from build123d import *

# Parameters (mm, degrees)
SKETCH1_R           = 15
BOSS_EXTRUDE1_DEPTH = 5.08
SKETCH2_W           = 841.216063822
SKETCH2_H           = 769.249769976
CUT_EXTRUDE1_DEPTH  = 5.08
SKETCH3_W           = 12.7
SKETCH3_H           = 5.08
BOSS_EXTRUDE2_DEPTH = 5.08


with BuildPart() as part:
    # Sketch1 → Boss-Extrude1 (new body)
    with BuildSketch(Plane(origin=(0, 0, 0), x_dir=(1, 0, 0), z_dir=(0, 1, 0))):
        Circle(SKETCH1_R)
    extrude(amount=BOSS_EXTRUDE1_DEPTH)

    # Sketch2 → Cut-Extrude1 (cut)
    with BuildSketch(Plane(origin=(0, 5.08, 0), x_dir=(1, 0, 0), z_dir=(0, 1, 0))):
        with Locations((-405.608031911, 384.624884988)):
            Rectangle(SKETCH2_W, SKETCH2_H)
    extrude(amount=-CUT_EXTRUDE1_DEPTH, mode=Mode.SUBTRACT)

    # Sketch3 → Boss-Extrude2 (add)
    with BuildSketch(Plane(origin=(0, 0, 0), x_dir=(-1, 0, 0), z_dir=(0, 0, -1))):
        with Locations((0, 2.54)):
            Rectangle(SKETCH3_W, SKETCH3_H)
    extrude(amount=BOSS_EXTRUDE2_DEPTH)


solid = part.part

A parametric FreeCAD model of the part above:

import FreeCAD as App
import Part
import Sketcher
Q = App.Units.Quantity


def add_polygon(sketch, points):
    """Adds a closed chain of lines whose ends are joined by coincident constraints."""
    first, n = sketch.GeometryCount, len(points)
    for a, b in zip(points, points[1:] + points[:1]):
        sketch.addGeometry(Part.LineSegment(App.Vector(*a, 0), App.Vector(*b, 0)), False)
    for i in range(n):
        sketch.addConstraint(Sketcher.Constraint("Coincident", first + i, 2, first + (i + 1) % n, 1))

doc = App.newDocument("Part")
body = doc.addObject("PartDesign::Body", "Body")

sketch1 = doc.addObject("Sketcher::SketchObject", "Sketch")
body.addObject(sketch1)
sketch1.AttachmentSupport = (doc.XZ_Plane, [""])
sketch1.MapMode = "FlatFace"
sketch1.addGeometry(Part.Circle(App.Vector(0, 0, 0), App.Vector(0, 0, 1), 15), False)
sketch1.addConstraint([
    Sketcher.Constraint("Coincident", 0, 3, -1, 1),
    Sketcher.Constraint("Diameter", 0, Q("30 mm")),
])
pad1 = doc.addObject("PartDesign::Pad", "Pad")
body.addObject(pad1)
pad1.Profile = sketch1
pad1.Length = Q("0.2 in")
pad1.Reversed = True

sketch2 = doc.addObject("Sketcher::SketchObject", "Sketch001")
body.addObject(sketch2)
sketch2.AttachmentSupport = (doc.XZ_Plane, [""])
sketch2.MapMode = "FlatFace"
sketch2.AttachmentOffset = App.Placement(App.Vector(0, 0, -0.2 * 25.4), App.Rotation())
add_polygon(sketch2, [(-826, -769), (-826, 0), (15, 0), (15, -769)])
sketch2.addConstraint([
    Sketcher.Constraint("Vertical", 0),
    Sketcher.Constraint("Horizontal", 1),
    Sketcher.Constraint("Vertical", 2),
    Sketcher.Constraint("Horizontal", 3),
    Sketcher.Constraint("PointOnObject", 0, 2, -1),
    Sketcher.Constraint("DistanceY", 0, 1, 0, 2, Q("769.24977 mm")),
    Sketcher.Constraint("DistanceX", -1, 1, 1, 2, Q("15 mm")),
    Sketcher.Constraint("DistanceX", 1, 1, 1, 2, Q("841.216064 mm")),
])
pocket1 = doc.addObject("PartDesign::Pocket", "Pocket")
body.addObject(pocket1)
pocket1.Profile = sketch2
pocket1.Length = Q("0.2 in")
pocket1.Reversed = True

sketch3 = doc.addObject("Sketcher::SketchObject", "Sketch002")
body.addObject(sketch3)
sketch3.AttachmentSupport = (doc.XY_Plane, [""])
sketch3.MapMode = "FlatFace"
add_polygon(sketch3, [(6, 5), (6, 0), (-6, 0), (-6, 5)])
sketch3.addConstraint([
    Sketcher.Constraint("Vertical", 0),
    Sketcher.Constraint("Horizontal", 1),
    Sketcher.Constraint("Vertical", 2),
    Sketcher.Constraint("Horizontal", 3),
    Sketcher.Constraint("Symmetric", 0, 2, 1, 2, -1, 1),
    Sketcher.Constraint("DistanceX", 1, 2, 1, 1, Q("0.5 in")),
    Sketcher.Constraint("DistanceY", 0, 2, 0, 1, Q("0.2 in")),
])
pad2 = doc.addObject("PartDesign::Pad", "Pad001")
body.addObject(pad2)
pad2.Profile = sketch3
pad2.Length = Q("0.2 in")
pad2.Reversed = True

doc.recompute()
